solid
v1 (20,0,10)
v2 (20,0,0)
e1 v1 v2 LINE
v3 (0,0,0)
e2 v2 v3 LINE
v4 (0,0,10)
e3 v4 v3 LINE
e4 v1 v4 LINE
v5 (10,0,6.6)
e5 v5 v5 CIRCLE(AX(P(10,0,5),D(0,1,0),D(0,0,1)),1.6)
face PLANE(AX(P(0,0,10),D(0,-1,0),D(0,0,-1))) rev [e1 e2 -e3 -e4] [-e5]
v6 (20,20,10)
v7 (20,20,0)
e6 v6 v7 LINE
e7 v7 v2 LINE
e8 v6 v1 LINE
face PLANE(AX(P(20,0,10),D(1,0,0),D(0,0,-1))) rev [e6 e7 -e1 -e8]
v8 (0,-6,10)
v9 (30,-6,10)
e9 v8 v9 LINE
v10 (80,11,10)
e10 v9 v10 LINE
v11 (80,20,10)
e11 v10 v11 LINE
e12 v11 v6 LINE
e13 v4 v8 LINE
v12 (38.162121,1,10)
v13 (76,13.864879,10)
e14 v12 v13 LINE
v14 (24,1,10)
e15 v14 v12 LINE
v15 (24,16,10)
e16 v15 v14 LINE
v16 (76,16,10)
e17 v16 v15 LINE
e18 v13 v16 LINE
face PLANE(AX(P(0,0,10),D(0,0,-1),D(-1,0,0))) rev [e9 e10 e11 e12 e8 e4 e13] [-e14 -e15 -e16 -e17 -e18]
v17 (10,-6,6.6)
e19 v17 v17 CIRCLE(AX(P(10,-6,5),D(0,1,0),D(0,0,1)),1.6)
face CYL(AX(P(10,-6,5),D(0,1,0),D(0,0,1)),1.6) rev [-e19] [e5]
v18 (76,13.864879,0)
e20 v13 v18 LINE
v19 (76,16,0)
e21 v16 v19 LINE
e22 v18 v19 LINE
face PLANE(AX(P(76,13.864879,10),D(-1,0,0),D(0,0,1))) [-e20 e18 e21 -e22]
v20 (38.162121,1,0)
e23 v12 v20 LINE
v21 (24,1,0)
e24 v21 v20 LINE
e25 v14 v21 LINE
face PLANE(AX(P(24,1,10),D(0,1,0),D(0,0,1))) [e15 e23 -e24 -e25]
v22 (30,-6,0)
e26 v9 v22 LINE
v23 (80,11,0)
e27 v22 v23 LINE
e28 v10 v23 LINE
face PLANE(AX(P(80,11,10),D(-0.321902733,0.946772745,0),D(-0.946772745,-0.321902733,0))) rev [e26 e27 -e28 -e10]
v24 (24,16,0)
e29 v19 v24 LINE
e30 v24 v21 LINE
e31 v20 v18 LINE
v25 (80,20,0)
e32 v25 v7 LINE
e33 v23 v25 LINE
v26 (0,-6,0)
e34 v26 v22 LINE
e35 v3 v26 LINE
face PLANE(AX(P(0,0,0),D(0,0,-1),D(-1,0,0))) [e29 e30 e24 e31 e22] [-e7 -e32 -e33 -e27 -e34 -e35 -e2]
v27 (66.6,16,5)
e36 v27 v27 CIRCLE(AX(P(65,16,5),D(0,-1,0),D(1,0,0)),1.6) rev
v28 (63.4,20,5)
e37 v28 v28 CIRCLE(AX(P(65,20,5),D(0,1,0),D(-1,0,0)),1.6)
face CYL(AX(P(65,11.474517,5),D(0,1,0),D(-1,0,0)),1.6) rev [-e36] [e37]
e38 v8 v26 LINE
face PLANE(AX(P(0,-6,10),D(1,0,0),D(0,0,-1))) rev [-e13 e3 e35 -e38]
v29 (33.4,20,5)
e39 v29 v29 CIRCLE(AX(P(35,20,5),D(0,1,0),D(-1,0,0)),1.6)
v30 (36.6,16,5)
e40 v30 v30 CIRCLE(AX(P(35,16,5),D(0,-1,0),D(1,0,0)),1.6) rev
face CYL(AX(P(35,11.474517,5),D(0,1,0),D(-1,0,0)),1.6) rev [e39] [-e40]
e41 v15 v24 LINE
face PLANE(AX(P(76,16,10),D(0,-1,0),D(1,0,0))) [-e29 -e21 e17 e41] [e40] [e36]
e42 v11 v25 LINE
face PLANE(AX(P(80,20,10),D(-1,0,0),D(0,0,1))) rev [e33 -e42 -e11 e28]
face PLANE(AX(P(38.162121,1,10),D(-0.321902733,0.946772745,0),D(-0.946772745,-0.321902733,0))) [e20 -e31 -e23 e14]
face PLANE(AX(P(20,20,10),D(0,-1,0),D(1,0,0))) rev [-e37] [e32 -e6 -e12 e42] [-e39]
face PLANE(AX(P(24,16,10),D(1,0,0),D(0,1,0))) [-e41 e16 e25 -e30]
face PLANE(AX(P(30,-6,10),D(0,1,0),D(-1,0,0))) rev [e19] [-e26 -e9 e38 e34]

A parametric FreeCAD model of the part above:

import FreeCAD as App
import Part
import Sketcher
from FreeCAD import Vector

doc = App.newDocument("Part")
body = doc.addObject("PartDesign::Body", "Body")

# Sketch on XY plane
sketch1 = body.newObject("Sketcher::SketchObject", "Sketch")
sketch1.AttachmentSupport = (doc.getObject("XY_Plane"), [""])
sketch1.MapMode = "FlatFace"
sketch1.addGeometry([
    Part.LineSegment(Vector(20, 0, 0), Vector(0, 0, 0)),  # 0
    Part.LineSegment(Vector(0, 0, 0), Vector(0, -6, 0)),  # 1
    Part.LineSegment(Vector(0, -6, 0), Vector(30, -6, 0)),  # 2
    Part.LineSegment(Vector(30, -6, 0), Vector(80, 11, 0)),  # 3
    Part.LineSegment(Vector(80, 11, 0), Vector(80, 20, 0)),  # 4
    Part.LineSegment(Vector(80, 20, 0), Vector(20, 20, 0)),  # 5
    Part.LineSegment(Vector(20, 20, 0), Vector(20, 0, 0)),  # 6
    Part.LineSegment(Vector(24, 16, 0), Vector(76, 16, 0)),  # 7
    Part.LineSegment(Vector(76, 16, 0), Vector(76, 13.864879, 0)),  # 8
    Part.LineSegment(Vector(76, 13.864879, 0), Vector(38.162121, 1, 0)),  # 9
    Part.LineSegment(Vector(38.162121, 1, 0), Vector(24, 1, 0)),  # 10
    Part.LineSegment(Vector(24, 1, 0), Vector(24, 16, 0)),  # 11
], False)
sketch1.addConstraint([
    Sketcher.Constraint("Coincident", 0, 2, 1, 1),
    Sketcher.Constraint("Coincident", 1, 2, 2, 1),
    Sketcher.Constraint("Coincident", 2, 2, 3, 1),
    Sketcher.Constraint("Coincident", 3, 2, 4, 1),
    Sketcher.Constraint("Coincident", 4, 2, 5, 1),
    Sketcher.Constraint("Coincident", 5, 2, 6, 1),
    Sketcher.Constraint("Coincident", 6, 2, 0, 1),
    Sketcher.Constraint("Coincident", 7, 2, 8, 1),
    Sketcher.Constraint("Coincident", 8, 2, 9, 1),
    Sketcher.Constraint("Coincident", 9, 2, 10, 1),
    Sketcher.Constraint("Coincident", 10, 2, 11, 1),
    Sketcher.Constraint("Coincident", 11, 2, 7, 1),
    Sketcher.Constraint("Horizontal", 0),
    Sketcher.Constraint("Vertical", 1),
    Sketcher.Constraint("Horizontal", 2),
    Sketcher.Constraint("Vertical", 4),
    Sketcher.Constraint("Horizontal", 5),
    Sketcher.Constraint("Vertical", 6),
    Sketcher.Constraint("Horizontal", 7),
    Sketcher.Constraint("Vertical", 8),
    Sketcher.Constraint("Horizontal", 10),
    Sketcher.Constraint("Vertical", 11),
    Sketcher.Constraint("Coincident", 0, 2, -1, 1),
    Sketcher.Constraint("Parallel", 3, 9),
    Sketcher.Constraint("Equal", 0, 6),
    Sketcher.Constraint("DistanceX", 0, 2, 0, 1, 20.0),
    Sketcher.Constraint("DistanceX", 2, 1, 2, 2, 30.0),
    Sketcher.Constraint("DistanceX", 5, 2, 5, 1, 60.0),
    Sketcher.Constraint("DistanceX", 7, 1, 7, 2, 52.0),
    Sketcher.Constraint("DistanceY", 1, 2, 1, 1, 6.0),
    Sketcher.Constraint("DistanceY", 4, 1, 4, 2, 9.0),
    Sketcher.Constraint("DistanceY", 11, 1, 11, 2, 15.0),
    Sketcher.Constraint("DistanceX", -1, 1, 7, 2, 76.0),
    Sketcher.Constraint("DistanceY", -1, 1, 7, 2, 16.0),
    Sketcher.Constraint("DistanceX", 10, 2, 10, 1, 14.162121),
])
pad1 = body.newObject("PartDesign::Pad", "Pad")
pad1.Profile = sketch1
pad1.Length = 10

# Sketch on XZ plane
sketch2 = body.newObject("Sketcher::SketchObject", "Sketch001")
sketch2.AttachmentSupport = (doc.getObject("XZ_Plane"), [""])
sketch2.MapMode = "FlatFace"
sketch2.addGeometry(Part.Circle(Vector(10, 5, 0), Vector(0, 0, 1), 1.6), False)
sketch2.addConstraint([
    Sketcher.Constraint("Diameter", 0, 3.2),
    Sketcher.Constraint("DistanceX", -1, 1, 0, 3, 10.0),
    Sketcher.Constraint("DistanceY", -1, 1, 0, 3, 5.0),
])
pocket1 = body.newObject("PartDesign::Pocket", "Pocket")
pocket1.Profile = sketch2
pocket1.Type = "ThroughAll"
pocket1.Reversed = True

# Sketch on XZ plane
sketch3 = body.newObject("Sketcher::SketchObject", "Sketch002")
sketch3.AttachmentSupport = (doc.getObject("XZ_Plane"), [""])
sketch3.MapMode = "FlatFace"
sketch3.AttachmentOffset = App.Placement(Vector(0, 0, -20), App.Rotation())
sketch3.addGeometry([
    Part.Circle(Vector(65, 5, 0), Vector(0, 0, 1), 1.6),
    Part.Circle(Vector(35, 5, 0), Vector(0, 0, 1), 1.6),
], False)
sketch3.addConstraint([
    Sketcher.Constraint("Equal", 0, 1),
    Sketcher.Constraint("Horizontal", 0, 3, 1, 3),
    Sketcher.Constraint("Diameter", 0, 3.2),
    Sketcher.Constraint("DistanceX", -1, 1, 0, 3, 65.0),
    Sketcher.Constraint("DistanceY", -1, 1, 0, 3, 5.0),
    Sketcher.Constraint("DistanceX", -1, 1, 1, 3, 35.0),
])
pocket2 = body.newObject("PartDesign::Pocket", "Pocket001")
pocket2.Profile = sketch3
pocket2.Length = 4
pocket2.Reversed = True

doc.recompute()
